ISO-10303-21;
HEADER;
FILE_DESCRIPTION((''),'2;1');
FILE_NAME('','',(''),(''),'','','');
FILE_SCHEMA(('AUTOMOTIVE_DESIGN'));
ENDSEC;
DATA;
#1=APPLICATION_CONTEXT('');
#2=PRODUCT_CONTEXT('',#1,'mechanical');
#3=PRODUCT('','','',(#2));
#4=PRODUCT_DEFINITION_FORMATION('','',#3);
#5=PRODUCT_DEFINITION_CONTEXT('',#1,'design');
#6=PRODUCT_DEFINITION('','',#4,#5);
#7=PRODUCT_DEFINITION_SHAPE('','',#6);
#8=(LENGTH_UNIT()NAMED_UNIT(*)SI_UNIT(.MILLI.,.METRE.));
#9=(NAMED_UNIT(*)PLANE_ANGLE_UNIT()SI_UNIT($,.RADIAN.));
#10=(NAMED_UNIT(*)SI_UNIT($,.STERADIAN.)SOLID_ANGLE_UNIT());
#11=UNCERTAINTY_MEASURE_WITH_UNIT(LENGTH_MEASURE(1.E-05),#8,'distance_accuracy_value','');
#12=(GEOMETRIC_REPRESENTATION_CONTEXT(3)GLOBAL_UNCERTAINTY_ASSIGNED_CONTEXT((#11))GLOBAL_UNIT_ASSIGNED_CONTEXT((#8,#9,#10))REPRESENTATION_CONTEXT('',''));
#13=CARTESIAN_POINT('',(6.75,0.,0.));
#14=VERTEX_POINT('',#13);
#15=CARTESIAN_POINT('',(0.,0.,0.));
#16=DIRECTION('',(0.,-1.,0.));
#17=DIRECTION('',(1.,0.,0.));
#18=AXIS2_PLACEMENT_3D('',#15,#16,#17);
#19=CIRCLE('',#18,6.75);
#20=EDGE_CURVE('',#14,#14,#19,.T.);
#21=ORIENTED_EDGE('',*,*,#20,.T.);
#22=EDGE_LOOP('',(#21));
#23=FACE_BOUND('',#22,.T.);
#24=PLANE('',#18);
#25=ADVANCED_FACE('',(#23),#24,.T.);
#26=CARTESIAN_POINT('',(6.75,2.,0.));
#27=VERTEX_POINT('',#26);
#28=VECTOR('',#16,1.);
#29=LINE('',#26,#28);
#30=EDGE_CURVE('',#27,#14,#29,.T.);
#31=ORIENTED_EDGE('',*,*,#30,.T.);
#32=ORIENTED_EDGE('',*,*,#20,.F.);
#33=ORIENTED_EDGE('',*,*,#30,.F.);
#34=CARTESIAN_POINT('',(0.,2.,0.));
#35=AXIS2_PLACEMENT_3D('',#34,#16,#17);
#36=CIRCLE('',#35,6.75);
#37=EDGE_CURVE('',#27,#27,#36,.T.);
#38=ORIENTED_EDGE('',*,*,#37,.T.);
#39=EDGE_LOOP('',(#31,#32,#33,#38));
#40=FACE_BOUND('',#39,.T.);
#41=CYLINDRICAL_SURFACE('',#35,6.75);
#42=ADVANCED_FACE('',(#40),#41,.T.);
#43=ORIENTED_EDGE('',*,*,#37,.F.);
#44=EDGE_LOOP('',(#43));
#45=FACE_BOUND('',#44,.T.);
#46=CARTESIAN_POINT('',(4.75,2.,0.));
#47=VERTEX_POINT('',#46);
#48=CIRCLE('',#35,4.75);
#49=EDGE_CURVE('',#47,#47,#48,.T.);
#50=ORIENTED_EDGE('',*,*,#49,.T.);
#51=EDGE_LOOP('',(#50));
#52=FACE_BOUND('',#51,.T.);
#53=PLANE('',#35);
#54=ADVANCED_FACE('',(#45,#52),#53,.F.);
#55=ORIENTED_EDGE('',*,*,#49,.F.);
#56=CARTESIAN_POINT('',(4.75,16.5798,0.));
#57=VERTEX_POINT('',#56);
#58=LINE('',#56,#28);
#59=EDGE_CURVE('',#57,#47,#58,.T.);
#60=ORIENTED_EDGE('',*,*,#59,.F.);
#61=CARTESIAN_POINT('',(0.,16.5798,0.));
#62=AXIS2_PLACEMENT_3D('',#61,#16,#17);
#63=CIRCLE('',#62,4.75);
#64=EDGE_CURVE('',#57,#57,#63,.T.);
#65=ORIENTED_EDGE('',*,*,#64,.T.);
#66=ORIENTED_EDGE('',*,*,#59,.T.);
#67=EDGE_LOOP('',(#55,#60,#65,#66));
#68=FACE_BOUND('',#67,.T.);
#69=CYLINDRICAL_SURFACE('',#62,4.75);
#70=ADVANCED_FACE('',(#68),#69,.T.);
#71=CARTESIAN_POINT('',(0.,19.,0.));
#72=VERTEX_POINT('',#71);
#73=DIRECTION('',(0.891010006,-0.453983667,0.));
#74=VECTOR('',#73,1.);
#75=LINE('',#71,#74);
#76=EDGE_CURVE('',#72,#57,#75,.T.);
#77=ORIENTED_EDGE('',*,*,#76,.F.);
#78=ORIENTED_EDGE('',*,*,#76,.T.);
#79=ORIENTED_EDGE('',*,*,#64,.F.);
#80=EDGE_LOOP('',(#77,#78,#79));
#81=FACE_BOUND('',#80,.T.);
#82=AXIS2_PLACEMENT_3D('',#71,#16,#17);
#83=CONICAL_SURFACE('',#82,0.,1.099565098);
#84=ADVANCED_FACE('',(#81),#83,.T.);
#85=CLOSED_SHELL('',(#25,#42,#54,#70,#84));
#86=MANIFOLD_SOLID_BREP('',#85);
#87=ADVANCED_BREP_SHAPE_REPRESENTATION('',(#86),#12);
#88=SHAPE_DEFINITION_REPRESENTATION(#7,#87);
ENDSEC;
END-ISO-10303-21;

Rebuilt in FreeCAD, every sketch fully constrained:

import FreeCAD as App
import Part
import Sketcher

V = App.Vector
Q = App.Units.Quantity


def add_polygon(sketch, points):
    """Adds a closed chain of lines whose ends are joined by coincident constraints."""
    first, n = sketch.GeometryCount, len(points)
    for a, b in zip(points, points[1:] + points[:1]):
        sketch.addGeometry(Part.LineSegment(App.Vector(*a, 0), App.Vector(*b, 0)), False)
    for i in range(n):
        sketch.addConstraint(Sketcher.Constraint("Coincident", first + i, 2, first + (i + 1) % n, 1))

doc = App.newDocument("Part")
body = doc.addObject("PartDesign::Body", "Body")

# Sketch on XY plane
sketch1 = body.newObject("Sketcher::SketchObject", "Sketch")
sketch1.AttachmentSupport = (doc.getObject("XY_Plane"), [""])
sketch1.MapMode = "FlatFace"
add_polygon(sketch1, [(4.75, 2), (4.75, 16.5798), (0, 19), (0, 0), (6.75, 0), (6.75, 2)])  # lines 0-5
sketch1.addConstraint([
    Sketcher.Constraint("Vertical", 0),
    Sketcher.Constraint("Vertical", 2),
    Sketcher.Constraint("Horizontal", 3),
    Sketcher.Constraint("Vertical", 4),
    Sketcher.Constraint("Horizontal", 5),
    Sketcher.Constraint("Coincident", 2, 2, -1, 1),
    Sketcher.Constraint("Equal", 5, 4),
    Sketcher.Constraint("DistanceX", 5, 2, 5, 1, Q("2 mm")),
    Sketcher.Constraint("DistanceY", 2, 2, 2, 1, Q("19 mm")),
    Sketcher.Constraint("Angle", 1, Q("153.0004 deg")),
    Sketcher.Constraint("DistanceX", 3, 1, 3, 2, Q("6.75 mm")),
])
revolution = body.newObject("PartDesign::Revolution", "Revolution")
revolution.Profile = sketch1
revolution.ReferenceAxis = (sketch1, ["V_Axis"])
revolution.Angle = 360

doc.recompute()
